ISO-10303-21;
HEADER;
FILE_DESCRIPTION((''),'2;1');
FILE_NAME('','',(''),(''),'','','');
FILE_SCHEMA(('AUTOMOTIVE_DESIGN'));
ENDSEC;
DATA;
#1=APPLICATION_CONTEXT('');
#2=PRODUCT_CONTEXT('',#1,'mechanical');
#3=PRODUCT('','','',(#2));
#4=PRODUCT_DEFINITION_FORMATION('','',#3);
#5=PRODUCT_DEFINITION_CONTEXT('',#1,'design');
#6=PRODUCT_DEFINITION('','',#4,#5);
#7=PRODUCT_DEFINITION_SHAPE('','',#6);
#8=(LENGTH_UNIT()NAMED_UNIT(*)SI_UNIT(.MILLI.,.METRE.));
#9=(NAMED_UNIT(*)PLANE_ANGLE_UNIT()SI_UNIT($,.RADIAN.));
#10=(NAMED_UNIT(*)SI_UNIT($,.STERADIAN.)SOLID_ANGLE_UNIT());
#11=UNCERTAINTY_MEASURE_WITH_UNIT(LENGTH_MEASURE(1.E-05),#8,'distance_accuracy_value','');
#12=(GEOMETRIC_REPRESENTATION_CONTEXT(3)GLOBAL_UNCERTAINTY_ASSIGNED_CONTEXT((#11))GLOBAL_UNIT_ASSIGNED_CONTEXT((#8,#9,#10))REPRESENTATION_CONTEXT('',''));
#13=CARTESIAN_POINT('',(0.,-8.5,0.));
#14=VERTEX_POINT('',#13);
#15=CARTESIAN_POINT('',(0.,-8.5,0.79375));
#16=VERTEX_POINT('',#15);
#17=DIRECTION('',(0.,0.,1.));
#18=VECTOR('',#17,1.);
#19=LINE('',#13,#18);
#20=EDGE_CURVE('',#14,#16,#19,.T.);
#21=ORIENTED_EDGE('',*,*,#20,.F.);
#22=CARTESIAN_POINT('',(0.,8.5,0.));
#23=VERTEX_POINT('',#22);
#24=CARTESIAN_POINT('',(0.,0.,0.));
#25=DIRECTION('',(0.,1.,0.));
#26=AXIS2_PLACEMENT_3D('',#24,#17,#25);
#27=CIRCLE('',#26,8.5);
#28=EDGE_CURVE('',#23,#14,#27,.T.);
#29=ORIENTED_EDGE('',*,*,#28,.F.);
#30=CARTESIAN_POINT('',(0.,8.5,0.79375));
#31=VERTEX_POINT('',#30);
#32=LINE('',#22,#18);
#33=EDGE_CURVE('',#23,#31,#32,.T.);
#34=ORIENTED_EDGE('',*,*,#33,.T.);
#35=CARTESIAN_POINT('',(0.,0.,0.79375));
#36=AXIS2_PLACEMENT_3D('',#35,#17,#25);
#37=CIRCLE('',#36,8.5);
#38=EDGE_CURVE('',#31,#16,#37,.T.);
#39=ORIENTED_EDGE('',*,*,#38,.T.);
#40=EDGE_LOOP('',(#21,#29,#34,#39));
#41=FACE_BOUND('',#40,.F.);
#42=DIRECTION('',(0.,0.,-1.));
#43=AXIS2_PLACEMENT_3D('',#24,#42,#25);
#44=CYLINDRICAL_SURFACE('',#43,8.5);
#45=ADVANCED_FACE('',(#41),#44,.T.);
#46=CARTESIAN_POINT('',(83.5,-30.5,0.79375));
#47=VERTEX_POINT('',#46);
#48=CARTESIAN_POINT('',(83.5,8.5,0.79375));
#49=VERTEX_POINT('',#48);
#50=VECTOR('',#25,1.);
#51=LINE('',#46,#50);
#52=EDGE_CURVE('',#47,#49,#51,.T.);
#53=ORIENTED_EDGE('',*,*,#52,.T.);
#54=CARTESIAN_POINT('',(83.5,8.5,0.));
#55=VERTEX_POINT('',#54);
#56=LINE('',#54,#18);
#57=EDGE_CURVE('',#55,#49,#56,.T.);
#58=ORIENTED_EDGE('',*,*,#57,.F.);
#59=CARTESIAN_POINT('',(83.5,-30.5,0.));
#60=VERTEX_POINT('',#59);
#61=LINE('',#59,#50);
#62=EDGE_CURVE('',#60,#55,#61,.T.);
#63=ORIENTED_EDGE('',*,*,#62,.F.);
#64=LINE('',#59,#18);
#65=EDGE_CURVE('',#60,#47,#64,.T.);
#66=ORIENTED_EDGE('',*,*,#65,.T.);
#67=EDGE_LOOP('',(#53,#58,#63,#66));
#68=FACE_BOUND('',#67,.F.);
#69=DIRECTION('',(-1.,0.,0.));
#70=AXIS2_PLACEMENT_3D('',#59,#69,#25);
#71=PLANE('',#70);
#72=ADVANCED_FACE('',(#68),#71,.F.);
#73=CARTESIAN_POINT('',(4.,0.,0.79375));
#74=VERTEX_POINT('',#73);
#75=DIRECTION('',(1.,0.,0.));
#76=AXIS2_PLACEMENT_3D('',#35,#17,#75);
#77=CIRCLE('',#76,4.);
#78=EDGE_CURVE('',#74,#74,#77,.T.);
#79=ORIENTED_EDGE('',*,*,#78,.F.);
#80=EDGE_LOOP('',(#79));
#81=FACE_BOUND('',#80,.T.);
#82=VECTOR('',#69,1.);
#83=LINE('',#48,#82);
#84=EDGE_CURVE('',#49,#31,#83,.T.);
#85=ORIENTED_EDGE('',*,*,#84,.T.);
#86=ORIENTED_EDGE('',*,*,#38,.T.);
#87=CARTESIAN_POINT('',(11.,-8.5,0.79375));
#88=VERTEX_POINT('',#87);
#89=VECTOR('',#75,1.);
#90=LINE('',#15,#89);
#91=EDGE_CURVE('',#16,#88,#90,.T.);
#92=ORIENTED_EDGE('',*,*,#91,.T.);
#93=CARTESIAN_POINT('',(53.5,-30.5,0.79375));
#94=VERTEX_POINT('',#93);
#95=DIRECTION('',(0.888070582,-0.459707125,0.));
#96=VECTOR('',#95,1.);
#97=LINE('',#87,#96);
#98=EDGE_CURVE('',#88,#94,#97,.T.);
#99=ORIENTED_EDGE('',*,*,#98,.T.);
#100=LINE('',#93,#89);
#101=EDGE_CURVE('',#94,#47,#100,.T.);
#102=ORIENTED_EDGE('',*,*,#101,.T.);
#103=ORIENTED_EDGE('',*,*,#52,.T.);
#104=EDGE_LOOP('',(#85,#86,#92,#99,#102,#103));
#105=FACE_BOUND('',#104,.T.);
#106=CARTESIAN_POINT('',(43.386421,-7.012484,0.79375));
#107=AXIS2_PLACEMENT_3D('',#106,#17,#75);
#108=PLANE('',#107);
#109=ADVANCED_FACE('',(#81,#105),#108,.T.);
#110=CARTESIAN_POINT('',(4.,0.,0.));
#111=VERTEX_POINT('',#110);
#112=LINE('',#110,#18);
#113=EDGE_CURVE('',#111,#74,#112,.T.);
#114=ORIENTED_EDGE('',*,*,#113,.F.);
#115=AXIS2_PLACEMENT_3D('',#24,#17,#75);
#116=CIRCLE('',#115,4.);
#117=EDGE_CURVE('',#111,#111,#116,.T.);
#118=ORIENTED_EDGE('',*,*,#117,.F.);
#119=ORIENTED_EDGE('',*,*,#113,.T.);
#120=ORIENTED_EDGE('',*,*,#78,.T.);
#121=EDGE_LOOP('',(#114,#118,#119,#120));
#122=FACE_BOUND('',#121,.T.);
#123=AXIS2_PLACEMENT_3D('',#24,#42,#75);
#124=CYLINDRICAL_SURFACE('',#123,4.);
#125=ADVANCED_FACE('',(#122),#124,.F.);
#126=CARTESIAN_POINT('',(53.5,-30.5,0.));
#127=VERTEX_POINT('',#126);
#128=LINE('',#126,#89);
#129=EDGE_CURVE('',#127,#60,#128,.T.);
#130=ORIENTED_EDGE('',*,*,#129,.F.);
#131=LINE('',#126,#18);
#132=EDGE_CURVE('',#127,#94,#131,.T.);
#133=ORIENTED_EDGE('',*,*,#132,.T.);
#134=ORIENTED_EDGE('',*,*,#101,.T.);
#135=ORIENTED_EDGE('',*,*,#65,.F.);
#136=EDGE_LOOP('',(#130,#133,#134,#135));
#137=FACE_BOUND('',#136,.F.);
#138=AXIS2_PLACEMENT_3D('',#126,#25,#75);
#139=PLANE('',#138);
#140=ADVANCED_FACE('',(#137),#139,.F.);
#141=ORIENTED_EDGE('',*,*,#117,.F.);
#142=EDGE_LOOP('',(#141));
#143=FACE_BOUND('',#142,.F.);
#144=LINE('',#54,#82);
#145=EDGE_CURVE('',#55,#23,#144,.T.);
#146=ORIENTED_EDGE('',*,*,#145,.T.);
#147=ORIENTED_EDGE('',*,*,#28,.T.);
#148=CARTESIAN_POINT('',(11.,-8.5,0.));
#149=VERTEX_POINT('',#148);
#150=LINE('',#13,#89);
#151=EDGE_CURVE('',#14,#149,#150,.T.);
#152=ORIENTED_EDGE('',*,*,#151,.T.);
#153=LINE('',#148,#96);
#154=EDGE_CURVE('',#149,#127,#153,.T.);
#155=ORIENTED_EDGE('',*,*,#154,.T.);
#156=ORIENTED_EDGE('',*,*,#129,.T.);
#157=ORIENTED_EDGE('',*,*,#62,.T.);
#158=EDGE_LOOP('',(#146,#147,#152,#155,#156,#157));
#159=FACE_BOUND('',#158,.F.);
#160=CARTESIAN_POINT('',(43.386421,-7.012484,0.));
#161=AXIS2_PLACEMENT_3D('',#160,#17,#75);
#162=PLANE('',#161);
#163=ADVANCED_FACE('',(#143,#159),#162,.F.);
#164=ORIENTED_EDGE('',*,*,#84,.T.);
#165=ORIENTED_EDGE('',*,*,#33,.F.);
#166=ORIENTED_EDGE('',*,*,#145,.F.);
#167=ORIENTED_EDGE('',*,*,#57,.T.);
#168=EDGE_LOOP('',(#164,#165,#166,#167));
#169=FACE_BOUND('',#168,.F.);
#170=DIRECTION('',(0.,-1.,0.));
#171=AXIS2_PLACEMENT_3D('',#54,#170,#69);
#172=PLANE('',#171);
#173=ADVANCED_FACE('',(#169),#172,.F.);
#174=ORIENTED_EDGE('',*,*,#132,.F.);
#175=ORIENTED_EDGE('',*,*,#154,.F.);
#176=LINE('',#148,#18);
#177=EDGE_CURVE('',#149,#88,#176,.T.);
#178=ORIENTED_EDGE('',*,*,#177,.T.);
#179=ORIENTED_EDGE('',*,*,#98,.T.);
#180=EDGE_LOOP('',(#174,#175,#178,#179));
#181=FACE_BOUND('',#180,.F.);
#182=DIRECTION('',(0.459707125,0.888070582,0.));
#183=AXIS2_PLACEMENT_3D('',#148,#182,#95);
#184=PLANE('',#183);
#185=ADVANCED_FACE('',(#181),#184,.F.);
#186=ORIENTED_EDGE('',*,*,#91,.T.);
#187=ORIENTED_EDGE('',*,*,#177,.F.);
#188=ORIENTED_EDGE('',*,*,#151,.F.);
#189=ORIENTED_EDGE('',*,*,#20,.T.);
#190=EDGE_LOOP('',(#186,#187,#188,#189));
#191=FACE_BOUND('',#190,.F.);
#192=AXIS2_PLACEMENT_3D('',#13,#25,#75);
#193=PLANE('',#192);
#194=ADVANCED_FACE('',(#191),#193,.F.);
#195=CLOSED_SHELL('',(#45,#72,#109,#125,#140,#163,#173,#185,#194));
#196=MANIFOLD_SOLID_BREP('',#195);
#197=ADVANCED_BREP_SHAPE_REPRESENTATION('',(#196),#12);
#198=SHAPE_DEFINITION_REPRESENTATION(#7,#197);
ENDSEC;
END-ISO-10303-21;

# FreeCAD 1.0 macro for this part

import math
import FreeCAD as App
import Part
import Sketcher

V = App.Vector
Q = App.Units.Quantity

doc = App.newDocument("Part")
params = doc.addObject("Spreadsheet::Sheet", "Params")
for row, (alias, value) in enumerate([
    ("sketch1_diameter", "8 mm"),
    ("sketch1_radius", "8.5 mm"),
    ("sketch1_width", "11 mm"),
    ("sketch1_width2", "30 mm"),
    ("sketch1_height", "39 mm"),
    ("pad1_length", "0.79375 mm"),
], start=1):
    params.set(f"A{row}", alias)
    params.set(f"B{row}", "=" + value)
    params.setAlias(f"B{row}", alias)

body = doc.addObject("PartDesign::Body", "Body")

# Sketch on XY plane
sketch1 = doc.addObject("Sketcher::SketchObject", "Sketch")
body.addObject(sketch1)
sketch1.AttachmentSupport = (doc.XY_Plane, [""])
sketch1.MapMode = "FlatFace"
sketch1.addGeometry(Part.LineSegment(V(83.5, 8.5, 0), V(0, 8.5, 0)), False)
sketch1.addGeometry(Part.ArcOfCircle(Part.Circle(V(0, 0, 0), V(0, 0, 1), 8.5), math.radians(90), math.radians(270)), False)
sketch1.addGeometry(Part.LineSegment(V(0, -8.5, 0), V(11, -8.5, 0)), False)
sketch1.addGeometry(Part.LineSegment(V(11, -8.5, 0), V(53.5, -30.5, 0)), False)
sketch1.addGeometry(Part.LineSegment(V(53.5, -30.5, 0), V(83.5, -30.5, 0)), False)
sketch1.addGeometry(Part.LineSegment(V(83.5, -30.5, 0), V(83.5, 8.5, 0)), False)
sketch1.addGeometry(Part.Circle(V(0, 0, 0), V(0, 0, 1), 4), False)
sketch1.addConstraint(Sketcher.Constraint("Tangent", 0, 2, 1, 1))
sketch1.addConstraint(Sketcher.Constraint("Tangent", 1, 2, 2, 1))
sketch1.addConstraint(Sketcher.Constraint("Coincident", 2, 2, 3, 1))
sketch1.addConstraint(Sketcher.Constraint("Coincident", 3, 2, 4, 1))
sketch1.addConstraint(Sketcher.Constraint("Coincident", 4, 2, 5, 1))
sketch1.addConstraint(Sketcher.Constraint("Coincident", 5, 2, 0, 1))
sketch1.addConstraint(Sketcher.Constraint("Horizontal", 0))
sketch1.addConstraint(Sketcher.Constraint("Horizontal", 2))
sketch1.addConstraint(Sketcher.Constraint("Horizontal", 4))
sketch1.addConstraint(Sketcher.Constraint("Vertical", 5))
sketch1.addConstraint(Sketcher.Constraint("Coincident", 1, 3, -1, 1))
sketch1.addConstraint(Sketcher.Constraint("Coincident", 6, 3, -1, 1))
sketch1.addConstraint(Sketcher.Constraint("Diameter", 6, Q("8 mm")))
sketch1.addConstraint(Sketcher.Constraint("Radius", 1, Q("8.5 mm")))
sketch1.addConstraint(Sketcher.Constraint("DistanceX", 2, 1, 2, 2, Q("11 mm")))
sketch1.addConstraint(Sketcher.Constraint("DistanceX", 4, 1, 4, 2, Q("30 mm")))
sketch1.addConstraint(Sketcher.Constraint("DistanceY", 5, 1, 5, 2, Q("39 mm")))
sketch1.addConstraint(Sketcher.Constraint("DistanceX", 0, 2, 0, 1, Q("83.5 mm")))
sketch1.setExpression("Constraints[12]", "Params.sketch1_diameter")
sketch1.setExpression("Constraints[13]", "Params.sketch1_radius")
sketch1.setExpression("Constraints[14]", "Params.sketch1_width")
sketch1.setExpression("Constraints[15]", "Params.sketch1_width2")
sketch1.setExpression("Constraints[16]", "Params.sketch1_height")
pad1 = doc.addObject("PartDesign::Pad", "Pad")
body.addObject(pad1)
pad1.Profile = sketch1
pad1.setExpression("Length", "Params.pad1_length")

doc.recompute()
